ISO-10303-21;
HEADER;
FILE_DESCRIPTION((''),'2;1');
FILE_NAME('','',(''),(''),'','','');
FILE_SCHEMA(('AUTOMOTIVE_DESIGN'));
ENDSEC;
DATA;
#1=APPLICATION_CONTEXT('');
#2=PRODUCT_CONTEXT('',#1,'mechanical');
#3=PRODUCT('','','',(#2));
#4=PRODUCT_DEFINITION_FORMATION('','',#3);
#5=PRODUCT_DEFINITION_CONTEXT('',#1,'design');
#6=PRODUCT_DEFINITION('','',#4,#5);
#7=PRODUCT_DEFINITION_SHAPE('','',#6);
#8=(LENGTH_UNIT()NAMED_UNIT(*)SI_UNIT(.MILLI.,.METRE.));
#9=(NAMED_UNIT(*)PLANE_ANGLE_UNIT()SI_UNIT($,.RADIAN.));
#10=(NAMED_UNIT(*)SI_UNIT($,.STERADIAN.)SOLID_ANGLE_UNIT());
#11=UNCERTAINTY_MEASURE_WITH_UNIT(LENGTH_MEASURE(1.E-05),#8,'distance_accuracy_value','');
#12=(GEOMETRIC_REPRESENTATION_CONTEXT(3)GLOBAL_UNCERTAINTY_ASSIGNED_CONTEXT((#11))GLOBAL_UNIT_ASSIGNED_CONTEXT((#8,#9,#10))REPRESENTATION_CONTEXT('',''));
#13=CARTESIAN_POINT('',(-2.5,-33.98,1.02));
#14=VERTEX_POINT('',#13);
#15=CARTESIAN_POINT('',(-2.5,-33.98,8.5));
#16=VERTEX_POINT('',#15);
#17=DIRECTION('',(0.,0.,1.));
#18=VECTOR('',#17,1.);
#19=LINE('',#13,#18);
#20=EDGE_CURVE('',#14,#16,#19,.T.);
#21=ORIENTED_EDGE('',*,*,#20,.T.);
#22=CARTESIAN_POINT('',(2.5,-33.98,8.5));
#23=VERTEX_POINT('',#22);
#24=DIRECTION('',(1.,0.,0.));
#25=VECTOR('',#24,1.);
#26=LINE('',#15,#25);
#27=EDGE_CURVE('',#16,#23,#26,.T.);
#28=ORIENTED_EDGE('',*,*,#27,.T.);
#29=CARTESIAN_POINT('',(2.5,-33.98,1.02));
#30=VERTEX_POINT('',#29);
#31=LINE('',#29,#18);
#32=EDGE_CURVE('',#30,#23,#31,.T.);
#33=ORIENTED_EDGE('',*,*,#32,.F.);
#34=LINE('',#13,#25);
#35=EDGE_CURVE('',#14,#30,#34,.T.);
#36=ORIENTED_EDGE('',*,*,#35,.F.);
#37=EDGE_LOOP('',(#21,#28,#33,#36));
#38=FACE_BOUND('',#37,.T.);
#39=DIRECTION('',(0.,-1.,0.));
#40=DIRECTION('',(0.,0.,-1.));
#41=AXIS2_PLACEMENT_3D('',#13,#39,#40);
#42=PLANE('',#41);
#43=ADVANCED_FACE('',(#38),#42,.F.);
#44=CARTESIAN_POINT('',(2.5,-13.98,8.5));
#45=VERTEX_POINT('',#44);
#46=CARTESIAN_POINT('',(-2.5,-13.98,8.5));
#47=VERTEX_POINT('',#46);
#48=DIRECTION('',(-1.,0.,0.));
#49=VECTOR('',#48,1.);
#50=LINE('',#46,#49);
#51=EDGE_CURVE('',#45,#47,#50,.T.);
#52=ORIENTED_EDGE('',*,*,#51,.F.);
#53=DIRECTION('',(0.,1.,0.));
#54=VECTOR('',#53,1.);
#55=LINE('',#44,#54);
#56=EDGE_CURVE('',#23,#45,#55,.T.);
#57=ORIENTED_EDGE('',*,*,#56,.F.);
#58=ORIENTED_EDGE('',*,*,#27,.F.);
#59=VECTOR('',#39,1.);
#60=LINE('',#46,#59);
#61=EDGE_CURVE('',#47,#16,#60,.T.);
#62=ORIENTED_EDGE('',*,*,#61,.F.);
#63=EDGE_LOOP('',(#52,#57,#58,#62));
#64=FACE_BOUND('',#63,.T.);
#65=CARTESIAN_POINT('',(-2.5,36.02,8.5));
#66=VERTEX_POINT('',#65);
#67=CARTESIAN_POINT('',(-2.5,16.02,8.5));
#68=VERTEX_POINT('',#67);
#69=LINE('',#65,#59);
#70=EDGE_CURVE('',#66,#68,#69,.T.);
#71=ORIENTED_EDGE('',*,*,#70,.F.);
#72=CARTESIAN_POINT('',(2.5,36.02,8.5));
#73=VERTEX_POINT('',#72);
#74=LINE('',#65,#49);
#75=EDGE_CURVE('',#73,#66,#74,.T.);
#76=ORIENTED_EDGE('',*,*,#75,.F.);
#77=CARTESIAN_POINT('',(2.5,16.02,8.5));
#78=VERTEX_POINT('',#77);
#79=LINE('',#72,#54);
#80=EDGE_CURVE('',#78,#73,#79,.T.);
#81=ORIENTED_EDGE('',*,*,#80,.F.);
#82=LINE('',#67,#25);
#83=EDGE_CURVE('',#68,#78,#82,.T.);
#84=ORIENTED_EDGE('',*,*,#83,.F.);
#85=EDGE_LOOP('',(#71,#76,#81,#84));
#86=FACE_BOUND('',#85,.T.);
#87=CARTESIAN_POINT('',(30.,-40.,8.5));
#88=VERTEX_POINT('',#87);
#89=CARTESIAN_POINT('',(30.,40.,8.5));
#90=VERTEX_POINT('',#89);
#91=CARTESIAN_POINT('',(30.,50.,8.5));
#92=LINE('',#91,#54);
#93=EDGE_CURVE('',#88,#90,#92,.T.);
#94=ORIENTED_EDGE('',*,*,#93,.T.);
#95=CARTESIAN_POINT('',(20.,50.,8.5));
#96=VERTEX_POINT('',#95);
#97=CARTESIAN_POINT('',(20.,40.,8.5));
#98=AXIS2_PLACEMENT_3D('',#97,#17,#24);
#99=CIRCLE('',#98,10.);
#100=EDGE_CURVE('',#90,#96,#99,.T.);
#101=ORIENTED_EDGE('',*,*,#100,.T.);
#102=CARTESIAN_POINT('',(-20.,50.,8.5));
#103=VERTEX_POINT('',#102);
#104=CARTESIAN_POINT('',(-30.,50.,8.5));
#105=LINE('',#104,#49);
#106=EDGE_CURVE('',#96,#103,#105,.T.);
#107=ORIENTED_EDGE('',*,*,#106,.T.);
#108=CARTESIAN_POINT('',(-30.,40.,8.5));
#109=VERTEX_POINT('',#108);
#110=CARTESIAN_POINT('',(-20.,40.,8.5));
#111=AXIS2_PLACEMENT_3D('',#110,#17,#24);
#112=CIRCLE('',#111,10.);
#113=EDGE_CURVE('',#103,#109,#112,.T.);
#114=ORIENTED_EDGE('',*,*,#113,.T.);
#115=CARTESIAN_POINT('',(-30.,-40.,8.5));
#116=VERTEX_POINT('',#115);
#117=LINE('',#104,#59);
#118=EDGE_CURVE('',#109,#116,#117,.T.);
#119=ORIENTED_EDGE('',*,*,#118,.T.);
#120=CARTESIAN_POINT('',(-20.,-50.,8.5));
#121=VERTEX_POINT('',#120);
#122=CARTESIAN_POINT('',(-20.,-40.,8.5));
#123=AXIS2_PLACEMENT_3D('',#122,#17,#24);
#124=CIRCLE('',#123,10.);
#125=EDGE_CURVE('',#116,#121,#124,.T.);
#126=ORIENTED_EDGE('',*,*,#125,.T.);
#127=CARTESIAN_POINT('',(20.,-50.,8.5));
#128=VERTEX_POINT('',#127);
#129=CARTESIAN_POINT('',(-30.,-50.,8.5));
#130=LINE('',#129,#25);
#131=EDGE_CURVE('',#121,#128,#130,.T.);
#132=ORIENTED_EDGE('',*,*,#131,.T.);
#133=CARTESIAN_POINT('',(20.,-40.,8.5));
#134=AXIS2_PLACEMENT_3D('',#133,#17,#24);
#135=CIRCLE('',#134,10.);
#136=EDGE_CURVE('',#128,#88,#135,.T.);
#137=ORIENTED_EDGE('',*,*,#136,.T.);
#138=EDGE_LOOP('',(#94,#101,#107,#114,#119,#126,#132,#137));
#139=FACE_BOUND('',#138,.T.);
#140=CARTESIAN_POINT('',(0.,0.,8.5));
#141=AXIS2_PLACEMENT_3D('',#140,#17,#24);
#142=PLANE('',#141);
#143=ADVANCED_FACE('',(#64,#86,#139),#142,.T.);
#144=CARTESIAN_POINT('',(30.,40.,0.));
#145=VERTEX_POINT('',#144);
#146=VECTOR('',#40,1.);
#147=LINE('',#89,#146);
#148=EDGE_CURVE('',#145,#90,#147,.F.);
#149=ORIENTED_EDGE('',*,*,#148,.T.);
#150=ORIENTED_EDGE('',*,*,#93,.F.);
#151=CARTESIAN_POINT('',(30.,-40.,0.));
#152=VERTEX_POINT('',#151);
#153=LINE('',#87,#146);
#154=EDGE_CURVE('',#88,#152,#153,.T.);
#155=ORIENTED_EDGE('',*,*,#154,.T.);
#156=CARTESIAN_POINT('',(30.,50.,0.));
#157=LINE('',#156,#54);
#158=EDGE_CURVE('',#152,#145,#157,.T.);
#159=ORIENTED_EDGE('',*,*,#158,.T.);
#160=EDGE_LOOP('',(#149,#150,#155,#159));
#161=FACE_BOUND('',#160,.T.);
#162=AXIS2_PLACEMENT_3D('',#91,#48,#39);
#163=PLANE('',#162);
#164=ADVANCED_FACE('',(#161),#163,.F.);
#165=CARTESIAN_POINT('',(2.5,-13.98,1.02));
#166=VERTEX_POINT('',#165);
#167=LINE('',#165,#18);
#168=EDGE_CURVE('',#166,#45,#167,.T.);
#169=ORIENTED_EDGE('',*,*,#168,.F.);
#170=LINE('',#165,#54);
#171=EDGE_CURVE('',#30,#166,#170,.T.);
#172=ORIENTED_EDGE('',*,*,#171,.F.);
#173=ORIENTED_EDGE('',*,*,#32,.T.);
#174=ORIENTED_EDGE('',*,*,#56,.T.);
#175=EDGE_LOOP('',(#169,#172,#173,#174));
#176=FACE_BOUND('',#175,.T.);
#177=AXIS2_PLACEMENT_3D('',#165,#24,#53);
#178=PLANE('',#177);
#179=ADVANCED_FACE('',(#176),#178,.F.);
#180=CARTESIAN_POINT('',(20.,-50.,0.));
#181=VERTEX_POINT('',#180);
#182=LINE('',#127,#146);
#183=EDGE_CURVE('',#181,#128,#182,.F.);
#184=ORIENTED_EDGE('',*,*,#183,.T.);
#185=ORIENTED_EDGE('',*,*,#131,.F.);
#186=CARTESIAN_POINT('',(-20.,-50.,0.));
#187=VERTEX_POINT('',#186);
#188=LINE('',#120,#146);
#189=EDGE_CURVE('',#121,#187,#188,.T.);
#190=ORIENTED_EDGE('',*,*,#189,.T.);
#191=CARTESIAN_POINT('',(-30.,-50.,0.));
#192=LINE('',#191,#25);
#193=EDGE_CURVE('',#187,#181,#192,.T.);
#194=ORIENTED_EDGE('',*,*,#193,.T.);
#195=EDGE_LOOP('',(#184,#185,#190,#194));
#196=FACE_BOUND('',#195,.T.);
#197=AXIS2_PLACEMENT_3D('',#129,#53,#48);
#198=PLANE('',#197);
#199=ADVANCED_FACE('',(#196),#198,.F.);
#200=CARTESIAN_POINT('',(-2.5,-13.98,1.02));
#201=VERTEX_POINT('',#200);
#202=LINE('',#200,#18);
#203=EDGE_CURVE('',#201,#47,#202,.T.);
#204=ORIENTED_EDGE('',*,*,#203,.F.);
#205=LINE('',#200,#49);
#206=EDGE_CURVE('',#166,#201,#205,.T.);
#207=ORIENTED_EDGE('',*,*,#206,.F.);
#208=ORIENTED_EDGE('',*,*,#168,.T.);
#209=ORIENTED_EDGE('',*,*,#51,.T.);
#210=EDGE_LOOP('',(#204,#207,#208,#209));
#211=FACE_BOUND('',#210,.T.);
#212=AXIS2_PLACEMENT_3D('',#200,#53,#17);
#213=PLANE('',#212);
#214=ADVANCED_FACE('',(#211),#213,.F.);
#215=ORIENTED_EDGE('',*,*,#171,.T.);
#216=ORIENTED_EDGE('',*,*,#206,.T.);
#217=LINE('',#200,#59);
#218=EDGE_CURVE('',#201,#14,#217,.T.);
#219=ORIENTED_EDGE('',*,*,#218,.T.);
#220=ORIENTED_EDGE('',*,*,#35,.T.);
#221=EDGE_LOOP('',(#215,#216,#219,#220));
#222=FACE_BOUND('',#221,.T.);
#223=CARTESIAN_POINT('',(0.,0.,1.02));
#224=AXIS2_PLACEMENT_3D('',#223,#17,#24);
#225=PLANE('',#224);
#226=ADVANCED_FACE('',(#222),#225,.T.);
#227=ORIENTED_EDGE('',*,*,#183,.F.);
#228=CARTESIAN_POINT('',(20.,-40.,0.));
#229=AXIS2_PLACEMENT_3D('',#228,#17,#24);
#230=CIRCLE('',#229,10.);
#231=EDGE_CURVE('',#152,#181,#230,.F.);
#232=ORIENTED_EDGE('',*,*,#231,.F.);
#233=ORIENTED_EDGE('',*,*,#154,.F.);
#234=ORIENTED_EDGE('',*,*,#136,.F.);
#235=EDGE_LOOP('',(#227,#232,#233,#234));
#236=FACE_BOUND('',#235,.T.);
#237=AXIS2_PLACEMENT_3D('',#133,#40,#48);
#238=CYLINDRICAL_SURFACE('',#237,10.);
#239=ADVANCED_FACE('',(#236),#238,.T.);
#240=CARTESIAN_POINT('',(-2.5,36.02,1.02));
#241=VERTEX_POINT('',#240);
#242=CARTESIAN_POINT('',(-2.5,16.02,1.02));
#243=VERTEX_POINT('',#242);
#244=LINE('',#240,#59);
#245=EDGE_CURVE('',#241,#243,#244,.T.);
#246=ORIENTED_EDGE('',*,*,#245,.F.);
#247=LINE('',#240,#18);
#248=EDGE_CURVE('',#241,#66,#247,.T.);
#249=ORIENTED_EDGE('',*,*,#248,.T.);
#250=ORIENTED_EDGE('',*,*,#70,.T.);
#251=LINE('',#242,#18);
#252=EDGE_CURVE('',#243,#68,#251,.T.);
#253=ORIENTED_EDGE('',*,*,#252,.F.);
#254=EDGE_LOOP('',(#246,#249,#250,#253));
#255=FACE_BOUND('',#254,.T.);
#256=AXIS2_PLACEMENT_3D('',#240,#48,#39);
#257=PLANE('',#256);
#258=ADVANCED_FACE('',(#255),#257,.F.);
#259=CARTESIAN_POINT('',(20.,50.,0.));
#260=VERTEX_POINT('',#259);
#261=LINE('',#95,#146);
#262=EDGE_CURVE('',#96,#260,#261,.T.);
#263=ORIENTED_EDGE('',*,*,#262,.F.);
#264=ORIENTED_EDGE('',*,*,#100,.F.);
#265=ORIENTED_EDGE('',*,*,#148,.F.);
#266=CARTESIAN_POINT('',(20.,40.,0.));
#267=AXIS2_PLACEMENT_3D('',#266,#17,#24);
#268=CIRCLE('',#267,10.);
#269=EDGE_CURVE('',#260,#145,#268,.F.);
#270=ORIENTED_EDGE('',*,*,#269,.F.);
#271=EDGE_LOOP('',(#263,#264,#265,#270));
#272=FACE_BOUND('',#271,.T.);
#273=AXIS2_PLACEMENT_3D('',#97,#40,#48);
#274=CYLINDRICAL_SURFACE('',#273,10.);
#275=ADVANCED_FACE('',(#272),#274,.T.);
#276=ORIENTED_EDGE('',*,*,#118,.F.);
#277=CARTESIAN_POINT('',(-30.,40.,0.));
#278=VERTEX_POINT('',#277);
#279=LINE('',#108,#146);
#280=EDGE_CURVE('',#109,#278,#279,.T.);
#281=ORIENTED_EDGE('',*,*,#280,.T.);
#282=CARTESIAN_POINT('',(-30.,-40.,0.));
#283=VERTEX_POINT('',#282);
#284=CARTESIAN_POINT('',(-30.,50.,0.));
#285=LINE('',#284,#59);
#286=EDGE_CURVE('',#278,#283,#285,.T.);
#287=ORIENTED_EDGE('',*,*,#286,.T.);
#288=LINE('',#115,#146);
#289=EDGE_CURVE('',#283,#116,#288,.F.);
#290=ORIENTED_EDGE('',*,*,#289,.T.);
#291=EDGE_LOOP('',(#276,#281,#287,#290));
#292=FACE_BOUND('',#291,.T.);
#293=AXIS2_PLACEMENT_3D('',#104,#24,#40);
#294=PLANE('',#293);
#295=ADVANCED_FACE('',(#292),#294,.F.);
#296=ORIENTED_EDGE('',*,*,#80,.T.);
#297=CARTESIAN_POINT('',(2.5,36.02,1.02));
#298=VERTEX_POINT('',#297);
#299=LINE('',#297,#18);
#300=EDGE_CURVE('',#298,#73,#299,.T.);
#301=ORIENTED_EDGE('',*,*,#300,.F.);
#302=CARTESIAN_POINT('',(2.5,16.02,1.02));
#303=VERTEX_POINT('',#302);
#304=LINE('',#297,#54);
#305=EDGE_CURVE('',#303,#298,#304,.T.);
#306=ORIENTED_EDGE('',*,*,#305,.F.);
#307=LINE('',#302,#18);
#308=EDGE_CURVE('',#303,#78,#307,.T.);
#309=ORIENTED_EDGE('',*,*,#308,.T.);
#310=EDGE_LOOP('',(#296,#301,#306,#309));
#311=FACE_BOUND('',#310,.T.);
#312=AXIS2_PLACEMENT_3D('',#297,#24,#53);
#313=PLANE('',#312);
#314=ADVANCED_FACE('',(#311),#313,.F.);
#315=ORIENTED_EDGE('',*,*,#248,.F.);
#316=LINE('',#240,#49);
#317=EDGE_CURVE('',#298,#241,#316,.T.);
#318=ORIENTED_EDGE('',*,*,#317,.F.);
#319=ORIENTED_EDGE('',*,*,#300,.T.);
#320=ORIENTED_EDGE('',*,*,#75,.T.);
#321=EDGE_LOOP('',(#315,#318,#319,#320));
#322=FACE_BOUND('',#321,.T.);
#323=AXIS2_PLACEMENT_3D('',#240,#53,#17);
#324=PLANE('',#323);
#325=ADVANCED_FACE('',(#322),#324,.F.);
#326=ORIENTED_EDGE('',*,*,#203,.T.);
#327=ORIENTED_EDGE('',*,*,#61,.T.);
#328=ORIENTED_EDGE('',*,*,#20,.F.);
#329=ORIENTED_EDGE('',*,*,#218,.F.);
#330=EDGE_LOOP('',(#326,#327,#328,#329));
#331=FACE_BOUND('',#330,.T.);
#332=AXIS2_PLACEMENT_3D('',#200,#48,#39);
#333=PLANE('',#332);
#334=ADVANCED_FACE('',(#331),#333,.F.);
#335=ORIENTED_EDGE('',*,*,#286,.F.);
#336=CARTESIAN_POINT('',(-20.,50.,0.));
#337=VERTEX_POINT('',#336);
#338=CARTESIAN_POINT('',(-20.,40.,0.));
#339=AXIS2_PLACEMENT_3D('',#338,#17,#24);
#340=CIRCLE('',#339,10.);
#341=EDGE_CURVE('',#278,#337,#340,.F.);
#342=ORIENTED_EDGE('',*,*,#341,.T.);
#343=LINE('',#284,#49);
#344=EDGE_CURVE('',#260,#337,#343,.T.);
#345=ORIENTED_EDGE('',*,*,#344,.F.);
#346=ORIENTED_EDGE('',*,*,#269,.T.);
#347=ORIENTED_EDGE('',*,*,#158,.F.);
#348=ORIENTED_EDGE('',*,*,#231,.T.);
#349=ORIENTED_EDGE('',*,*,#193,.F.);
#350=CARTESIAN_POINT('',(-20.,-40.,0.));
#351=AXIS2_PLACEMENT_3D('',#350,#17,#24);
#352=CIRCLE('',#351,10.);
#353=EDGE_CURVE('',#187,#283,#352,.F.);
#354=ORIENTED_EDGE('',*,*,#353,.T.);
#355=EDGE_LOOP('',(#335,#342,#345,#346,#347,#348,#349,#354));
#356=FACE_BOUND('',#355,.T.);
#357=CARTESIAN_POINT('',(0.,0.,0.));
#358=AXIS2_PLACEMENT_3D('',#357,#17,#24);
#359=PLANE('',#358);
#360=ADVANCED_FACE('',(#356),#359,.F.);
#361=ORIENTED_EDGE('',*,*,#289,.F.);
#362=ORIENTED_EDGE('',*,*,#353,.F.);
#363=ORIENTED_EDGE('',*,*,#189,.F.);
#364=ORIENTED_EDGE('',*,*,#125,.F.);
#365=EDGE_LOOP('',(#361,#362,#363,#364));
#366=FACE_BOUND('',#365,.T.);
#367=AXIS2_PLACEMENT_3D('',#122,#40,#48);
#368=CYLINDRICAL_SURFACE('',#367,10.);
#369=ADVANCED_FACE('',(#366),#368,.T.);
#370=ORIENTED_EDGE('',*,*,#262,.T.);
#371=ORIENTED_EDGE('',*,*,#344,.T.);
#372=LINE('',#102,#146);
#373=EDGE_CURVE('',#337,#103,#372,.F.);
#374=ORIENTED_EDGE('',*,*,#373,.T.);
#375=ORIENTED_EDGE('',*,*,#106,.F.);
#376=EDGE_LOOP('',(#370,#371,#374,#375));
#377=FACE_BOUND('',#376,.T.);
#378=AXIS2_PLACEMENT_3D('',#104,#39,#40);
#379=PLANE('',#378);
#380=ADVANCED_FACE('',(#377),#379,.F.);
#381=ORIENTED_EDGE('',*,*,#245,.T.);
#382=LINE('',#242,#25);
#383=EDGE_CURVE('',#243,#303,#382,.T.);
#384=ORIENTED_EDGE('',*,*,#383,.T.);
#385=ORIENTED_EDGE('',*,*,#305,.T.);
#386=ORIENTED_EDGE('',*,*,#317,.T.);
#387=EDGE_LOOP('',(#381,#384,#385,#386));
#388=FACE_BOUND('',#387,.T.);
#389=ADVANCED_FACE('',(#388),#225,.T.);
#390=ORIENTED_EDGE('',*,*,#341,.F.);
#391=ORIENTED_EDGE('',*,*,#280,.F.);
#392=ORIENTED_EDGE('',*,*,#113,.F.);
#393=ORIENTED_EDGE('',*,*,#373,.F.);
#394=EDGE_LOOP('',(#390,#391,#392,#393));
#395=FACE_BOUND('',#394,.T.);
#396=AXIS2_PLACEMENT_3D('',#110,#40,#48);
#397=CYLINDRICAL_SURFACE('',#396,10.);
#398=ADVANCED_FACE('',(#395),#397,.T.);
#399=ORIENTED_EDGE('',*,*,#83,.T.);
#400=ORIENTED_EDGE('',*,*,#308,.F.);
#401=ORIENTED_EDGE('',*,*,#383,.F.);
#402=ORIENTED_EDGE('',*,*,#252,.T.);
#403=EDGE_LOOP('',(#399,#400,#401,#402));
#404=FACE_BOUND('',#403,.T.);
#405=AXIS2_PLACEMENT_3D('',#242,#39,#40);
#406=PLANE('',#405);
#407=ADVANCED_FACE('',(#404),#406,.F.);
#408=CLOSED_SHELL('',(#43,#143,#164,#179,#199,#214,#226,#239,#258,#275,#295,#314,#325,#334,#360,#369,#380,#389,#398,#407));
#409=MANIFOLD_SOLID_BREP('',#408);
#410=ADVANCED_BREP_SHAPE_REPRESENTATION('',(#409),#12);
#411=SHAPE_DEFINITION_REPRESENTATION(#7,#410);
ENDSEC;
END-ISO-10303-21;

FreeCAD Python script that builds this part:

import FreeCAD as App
import Part
import Sketcher
from FreeCAD import Vector


def edges_at(feature, points):
    """Names of the edges that pass closest to the given points."""
    edges = feature.Shape.Edges
    near = lambda p: min(range(len(edges)), key=lambda i: edges[i].distToShape(Part.Vertex(*p))[0])
    return sorted({f"Edge{near(p) + 1}" for p in points})


def add_polygon(sketch, points):
    """Adds a closed chain of lines whose ends are joined by coincident constraints."""
    first, n = sketch.GeometryCount, len(points)
    for a, b in zip(points, points[1:] + points[:1]):
        sketch.addGeometry(Part.LineSegment(App.Vector(*a, 0), App.Vector(*b, 0)), False)
    for i in range(n):
        sketch.addConstraint(Sketcher.Constraint("Coincident", first + i, 2, first + (i + 1) % n, 1))

doc = App.newDocument("Part")
body = doc.addObject("PartDesign::Body", "Body")

sketch1 = doc.addObject("Sketcher::SketchObject", "Sketch")
body.addObject(sketch1)
sketch1.AttachmentSupport = (doc.XY_Plane, [""])
sketch1.MapMode = "FlatFace"
add_polygon(sketch1, [(-30, 50), (-30, -50), (30, -50), (30, 50)])
sketch1.addConstraint(Sketcher.Constraint("Vertical", 0))
sketch1.addConstraint(Sketcher.Constraint("Horizontal", 1))
sketch1.addConstraint(Sketcher.Constraint("Vertical", 2))
sketch1.addConstraint(Sketcher.Constraint("Horizontal", 3))
sketch1.addConstraint(Sketcher.Constraint("Symmetric", 0, 2, 2, 2, -1, 1))
sketch1.addConstraint(Sketcher.Constraint("DistanceX", 1, 1, 1, 2, 60.0))
sketch1.addConstraint(Sketcher.Constraint("DistanceY", 0, 2, 0, 1, 100.0))
pad1 = doc.addObject("PartDesign::Pad", "Pad")
body.addObject(pad1)
pad1.Profile = sketch1
pad1.Length = 8.5

sketch2 = doc.addObject("Sketcher::SketchObject", "Sketch001")
body.addObject(sketch2)
sketch2.AttachmentSupport = (doc.XY_Plane, [""])
sketch2.MapMode = "FlatFace"
sketch2.AttachmentOffset = App.Placement(Vector(0, 0, 8.5), App.Rotation())
add_polygon(sketch2, [(-2.5, 36.02), (-2.5, 16.02), (2.5, 16.02), (2.5, 36.02)])
add_polygon(sketch2, [(-2.5, -13.98), (-2.5, -33.98), (2.5, -33.98), (2.5, -13.98)])
sketch2.addConstraint(Sketcher.Constraint("Vertical", 0))
sketch2.addConstraint(Sketcher.Constraint("Horizontal", 1))
sketch2.addConstraint(Sketcher.Constraint("Vertical", 2))
sketch2.addConstraint(Sketcher.Constraint("Horizontal", 3))
sketch2.addConstraint(Sketcher.Constraint("Vertical", 4))
sketch2.addConstraint(Sketcher.Constraint("Horizontal", 5))
sketch2.addConstraint(Sketcher.Constraint("Vertical", 6))
sketch2.addConstraint(Sketcher.Constraint("Horizontal", 7))
sketch2.addConstraint(Sketcher.Constraint("Vertical", 3, 2, 4, 2))
sketch2.addConstraint(Sketcher.Constraint("Vertical", 2, 2, 5, 2))
sketch2.addConstraint(Sketcher.Constraint("Equal", 2, 4))
sketch2.addConstraint(Sketcher.Constraint("DistanceX", 1, 1, 1, 2, 5.0))
sketch2.addConstraint(Sketcher.Constraint("DistanceY", 0, 2, 0, 1, 20.0))
sketch2.addConstraint(Sketcher.Constraint("DistanceY", 4, 2, 0, 2, 50.0))
sketch2.addConstraint(Sketcher.Constraint("DistanceX", 0, 2, -1, 1, 2.5))
sketch2.addConstraint(Sketcher.Constraint("DistanceY", -1, 1, 0, 2, 16.02))
pocket1 = doc.addObject("PartDesign::Pocket", "Pocket")
body.addObject(pocket1)
pocket1.Profile = sketch2
pocket1.Length = 7.48
doc.recompute()

fillet = doc.addObject("PartDesign::Fillet", "Fillet")
body.addObject(fillet)
fillet.Base = (pocket1, edges_at(pocket1, [(-30, 50, 4.25)]))
fillet.Radius = 10
doc.recompute()

fillet2 = doc.addObject("PartDesign::Fillet", "Fillet001")
body.addObject(fillet2)
fillet2.Base = (fillet, edges_at(fillet, [(30, -50, 4.25), (-30, -50, 4.25), (30, 50, 4.25)]))
fillet2.Radius = 10

doc.recompute()
